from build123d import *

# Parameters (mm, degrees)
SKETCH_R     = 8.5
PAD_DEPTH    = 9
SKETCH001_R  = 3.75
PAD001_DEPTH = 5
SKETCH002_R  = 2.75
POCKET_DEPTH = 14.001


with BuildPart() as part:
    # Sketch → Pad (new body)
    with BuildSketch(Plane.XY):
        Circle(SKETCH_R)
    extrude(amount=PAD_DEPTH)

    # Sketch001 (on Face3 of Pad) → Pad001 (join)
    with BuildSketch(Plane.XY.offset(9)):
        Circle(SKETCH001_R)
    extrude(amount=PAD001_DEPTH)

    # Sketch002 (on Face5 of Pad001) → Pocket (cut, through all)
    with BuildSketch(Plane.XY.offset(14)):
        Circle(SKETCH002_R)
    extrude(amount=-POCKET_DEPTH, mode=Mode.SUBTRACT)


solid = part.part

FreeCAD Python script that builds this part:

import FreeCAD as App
import Part
import Sketcher

doc = App.newDocument("Part")
body = doc.addObject("PartDesign::Body", "Body")

sketch1 = doc.addObject("Sketcher::SketchObject", "Sketch")
body.addObject(sketch1)
sketch1.AttachmentSupport = (doc.XY_Plane, [""])
sketch1.MapMode = "FlatFace"
sketch1.addGeometry(Part.Circle(App.Vector(0, 0, 0), App.Vector(0, 0, 1), 8), False)
sketch1.addConstraint(Sketcher.Constraint("Coincident", 0, 3, -1, 1))
sketch1.addConstraint(Sketcher.Constraint("Diameter", 0, 17.0))
pad1 = doc.addObject("PartDesign::Pad", "Pad")
body.addObject(pad1)
pad1.Profile = sketch1
pad1.Length = 9

sketch2 = doc.addObject("Sketcher::SketchObject", "Sketch001")
body.addObject(sketch2)
sketch2.AttachmentSupport = (doc.XY_Plane, [""])
sketch2.MapMode = "FlatFace"
sketch2.AttachmentOffset = App.Placement(App.Vector(0, 0, 9), App.Rotation())
sketch2.addGeometry(Part.Circle(App.Vector(0, 0, 0), App.Vector(0, 0, 1), 3.8), False)
sketch2.addConstraint(Sketcher.Constraint("Coincident", 0, 3, -1, 1))
sketch2.addConstraint(Sketcher.Constraint("Diameter", 0, 7.5))
pad2 = doc.addObject("PartDesign::Pad", "Pad001")
body.addObject(pad2)
pad2.Profile = sketch2
pad2.Length = 5

sketch3 = doc.addObject("Sketcher::SketchObject", "Sketch002")
body.addObject(sketch3)
sketch3.AttachmentSupport = (doc.XY_Plane, [""])
sketch3.MapMode = "FlatFace"
sketch3.AttachmentOffset = App.Placement(App.Vector(0, 0, 14), App.Rotation())
sketch3.addGeometry(Part.Circle(App.Vector(0, 0, 0), App.Vector(0, 0, 1), 2.8), False)
sketch3.addConstraint(Sketcher.Constraint("Coincident", 0, 3, -1, 1))
sketch3.addConstraint(Sketcher.Constraint("Diameter", 0, 5.5))
pocket1 = doc.addObject("PartDesign::Pocket", "Pocket")
body.addObject(pocket1)
pocket1.Profile = sketch3
pocket1.Type = "ThroughAll"

doc.recompute()
